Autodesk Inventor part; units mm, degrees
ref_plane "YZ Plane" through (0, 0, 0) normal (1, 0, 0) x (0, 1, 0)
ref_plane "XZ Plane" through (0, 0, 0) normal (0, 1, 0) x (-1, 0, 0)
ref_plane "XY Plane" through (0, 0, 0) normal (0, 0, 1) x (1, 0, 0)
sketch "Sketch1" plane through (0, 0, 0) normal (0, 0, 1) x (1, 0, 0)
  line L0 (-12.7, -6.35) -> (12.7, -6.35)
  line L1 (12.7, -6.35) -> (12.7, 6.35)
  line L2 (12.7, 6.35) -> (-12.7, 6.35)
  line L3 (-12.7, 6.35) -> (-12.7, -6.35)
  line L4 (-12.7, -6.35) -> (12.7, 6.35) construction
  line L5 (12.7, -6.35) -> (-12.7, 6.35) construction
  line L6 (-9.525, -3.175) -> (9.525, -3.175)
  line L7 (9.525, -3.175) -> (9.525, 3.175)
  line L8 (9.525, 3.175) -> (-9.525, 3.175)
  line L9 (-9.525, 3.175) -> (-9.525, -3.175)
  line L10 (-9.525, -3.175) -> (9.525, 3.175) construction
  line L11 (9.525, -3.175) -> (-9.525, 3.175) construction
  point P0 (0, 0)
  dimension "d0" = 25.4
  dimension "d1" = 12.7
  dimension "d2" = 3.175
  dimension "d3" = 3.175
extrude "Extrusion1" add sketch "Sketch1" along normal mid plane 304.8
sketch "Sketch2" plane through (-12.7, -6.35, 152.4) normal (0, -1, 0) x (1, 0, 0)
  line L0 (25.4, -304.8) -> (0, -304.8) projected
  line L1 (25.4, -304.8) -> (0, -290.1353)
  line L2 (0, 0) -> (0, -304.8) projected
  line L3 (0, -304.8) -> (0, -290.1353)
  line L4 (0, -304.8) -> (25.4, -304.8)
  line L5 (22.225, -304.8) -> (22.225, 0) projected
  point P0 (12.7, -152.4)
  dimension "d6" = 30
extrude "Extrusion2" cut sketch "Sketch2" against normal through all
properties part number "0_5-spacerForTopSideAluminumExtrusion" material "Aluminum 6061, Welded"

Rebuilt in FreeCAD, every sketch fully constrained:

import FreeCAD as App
import Part
import Sketcher
from FreeCAD import Vector
Q = App.Units.Quantity

doc = App.newDocument("Part")
params = doc.addObject("Spreadsheet::Sheet", "Params")
for row, (alias, value) in enumerate([
    ("sketch1_width", "1 in"),
    ("sketch1_height", "0.5 in"),
    ("pad1_length", "12 in"),
    ("sketch2_width", "1 in"),
], start=1):
    params.set(f"A{row}", alias)
    params.set(f"B{row}", "=" + value)
    params.setAlias(f"B{row}", alias)

body = doc.addObject("PartDesign::Body", "Body")

# Sketch on XY plane
sketch1 = body.newObject("Sketcher::SketchObject", "Sketch")
sketch1.AttachmentSupport = (doc.getObject("XY_Plane"), [""])
sketch1.MapMode = "FlatFace"
sketch1.addGeometry(Part.LineSegment(Vector(-13, 6, 0), Vector(-13, -6, 0)), False)
sketch1.addGeometry(Part.LineSegment(Vector(-13, -6, 0), Vector(13, -6, 0)), False)
sketch1.addGeometry(Part.LineSegment(Vector(13, -6, 0), Vector(13, 6, 0)), False)
sketch1.addGeometry(Part.LineSegment(Vector(13, 6, 0), Vector(-13, 6, 0)), False)
sketch1.addGeometry(Part.LineSegment(Vector(10, -3, 0), Vector(-10, -3, 0)), False)
sketch1.addGeometry(Part.LineSegment(Vector(-10, -3, 0), Vector(-10, 3, 0)), False)
sketch1.addGeometry(Part.LineSegment(Vector(-10, 3, 0), Vector(10, 3, 0)), False)
sketch1.addGeometry(Part.LineSegment(Vector(10, 3, 0), Vector(10, -3, 0)), False)
sketch1.addConstraint(Sketcher.Constraint("Coincident", 0, 2, 1, 1))
sketch1.addConstraint(Sketcher.Constraint("Coincident", 1, 2, 2, 1))
sketch1.addConstraint(Sketcher.Constraint("Coincident", 2, 2, 3, 1))
sketch1.addConstraint(Sketcher.Constraint("Coincident", 3, 2, 0, 1))
sketch1.addConstraint(Sketcher.Constraint("Coincident", 4, 2, 5, 1))
sketch1.addConstraint(Sketcher.Constraint("Coincident", 5, 2, 6, 1))
sketch1.addConstraint(Sketcher.Constraint("Coincident", 6, 2, 7, 1))
sketch1.addConstraint(Sketcher.Constraint("Coincident", 7, 2, 4, 1))
sketch1.addConstraint(Sketcher.Constraint("Vertical", 0))
sketch1.addConstraint(Sketcher.Constraint("Horizontal", 1))
sketch1.addConstraint(Sketcher.Constraint("Vertical", 2))
sketch1.addConstraint(Sketcher.Constraint("Horizontal", 3))
sketch1.addConstraint(Sketcher.Constraint("Horizontal", 4))
sketch1.addConstraint(Sketcher.Constraint("Vertical", 5))
sketch1.addConstraint(Sketcher.Constraint("Horizontal", 6))
sketch1.addConstraint(Sketcher.Constraint("Vertical", 7))
sketch1.addConstraint(Sketcher.Constraint("Symmetric", 0, 2, 2, 2, -1, 1))
sketch1.addConstraint(Sketcher.Constraint("Symmetric", 4, 2, 6, 2, -1, 1))
sketch1.addConstraint(Sketcher.Constraint("DistanceX", 1, 1, 1, 2, Q("1 in")))
sketch1.addConstraint(Sketcher.Constraint("DistanceY", 0, 2, 0, 1, Q("0.5 in")))
sketch1.addConstraint(Sketcher.Constraint("DistanceY", 4, 2, -1, 1, Q("0.125 in")))
sketch1.addConstraint(Sketcher.Constraint("DistanceX", 0, 2, 4, 2, Q("0.125 in")))
sketch1.setExpression("Constraints[18]", "Params.sketch1_width")
sketch1.setExpression("Constraints[19]", "Params.sketch1_height")
pad1 = body.newObject("PartDesign::Pad", "Pad")
pad1.Profile = sketch1
pad1.setExpression("Length", "Params.pad1_length")
pad1.Midplane = True

# Sketch on XZ plane
sketch2 = body.newObject("Sketcher::SketchObject", "Sketch001")
sketch2.AttachmentSupport = (doc.getObject("XZ_Plane"), [""])
sketch2.MapMode = "FlatFace"
sketch2.AttachmentOffset = App.Placement(Vector(0, 0, 0.25 * 25.4), App.Rotation())
sketch2.addGeometry(Part.LineSegment(Vector(13, -152, 0), Vector(-13, -138, 0)), False)
sketch2.addGeometry(Part.LineSegment(Vector(-13, -138, 0), Vector(-13, -152, 0)), False)
sketch2.addGeometry(Part.LineSegment(Vector(-13, -152, 0), Vector(13, -152, 0)), False)
sketch2.addConstraint(Sketcher.Constraint("Coincident", 0, 2, 1, 1))
sketch2.addConstraint(Sketcher.Constraint("Coincident", 1, 2, 2, 1))
sketch2.addConstraint(Sketcher.Constraint("Coincident", 2, 2, 0, 1))
sketch2.addConstraint(Sketcher.Constraint("Vertical", 1))
sketch2.addConstraint(Sketcher.Constraint("Horizontal", 2))
sketch2.addConstraint(Sketcher.Constraint("DistanceX", 2, 1, 2, 2, Q("1 in")))
sketch2.addConstraint(Sketcher.Constraint("DistanceY", 1, 2, -1, 1, Q("6 in")))
sketch2.addConstraint(Sketcher.Constraint("Angle", 0, Q("150 deg")))
sketch2.addConstraint(Sketcher.Constraint("DistanceX", 0, 2, -1, 1, Q("0.5 in")))
sketch2.setExpression("Constraints[5]", "Params.sketch2_width")
pocket1 = body.newObject("PartDesign::Pocket", "Pocket")
pocket1.Profile = sketch2
pocket1.Type = "ThroughAll"

doc.recompute()
